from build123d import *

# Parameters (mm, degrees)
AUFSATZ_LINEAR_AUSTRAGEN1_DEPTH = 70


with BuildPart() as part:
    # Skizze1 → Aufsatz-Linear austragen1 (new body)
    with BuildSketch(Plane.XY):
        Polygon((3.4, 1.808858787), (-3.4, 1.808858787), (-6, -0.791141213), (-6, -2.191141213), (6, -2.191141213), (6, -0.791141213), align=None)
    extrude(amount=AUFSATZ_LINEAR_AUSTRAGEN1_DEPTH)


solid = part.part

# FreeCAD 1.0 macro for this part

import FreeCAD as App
import Part
import Sketcher
from FreeCAD import Vector
Q = App.Units.Quantity

doc = App.newDocument("Part")
body = doc.addObject("PartDesign::Body", "Body")

sketch1 = body.newObject("Sketcher::SketchObject", "Sketch")
sketch1.AttachmentSupport = (doc.getObject("XY_Plane"), [""])
sketch1.MapMode = "FlatFace"
sketch1.addGeometry([
    Part.LineSegment(Vector(3.4, 1.8, 0), Vector(-3.4, 1.8, 0)),
    Part.LineSegment(Vector(-3.4, 1.8, 0), Vector(-6, -0.8, 0)),
    Part.LineSegment(Vector(-6, -0.8, 0), Vector(-6, -2.2, 0)),
    Part.LineSegment(Vector(-6, -2.2, 0), Vector(6, -2.2, 0)),
    Part.LineSegment(Vector(6, -2.2, 0), Vector(6, -0.8, 0)),
    Part.LineSegment(Vector(6, -0.8, 0), Vector(3.4, 1.8, 0)),
], False)
sketch1.addConstraint([
    Sketcher.Constraint("Coincident", 0, 2, 1, 1),
    Sketcher.Constraint("Coincident", 1, 2, 2, 1),
    Sketcher.Constraint("Coincident", 2, 2, 3, 1),
    Sketcher.Constraint("Coincident", 3, 2, 4, 1),
    Sketcher.Constraint("Coincident", 4, 2, 5, 1),
    Sketcher.Constraint("Coincident", 5, 2, 0, 1),
    Sketcher.Constraint("Horizontal", 0),
    Sketcher.Constraint("Vertical", 2),
    Sketcher.Constraint("Horizontal", 3),
    Sketcher.Constraint("Vertical", 4),
    Sketcher.Constraint("Symmetric", 1, 2, 4, 2, -2),
    Sketcher.Constraint("Perpendicular", 1, 5),
    Sketcher.Constraint("Equal", 1, 5),
    Sketcher.Constraint("DistanceX", 3, 1, 3, 2, Q("12 mm")),
    Sketcher.Constraint("DistanceX", 0, 2, 0, 1, Q("6.8 mm")),
    Sketcher.Constraint("DistanceY", 2, 2, 2, 1, Q("1.4 mm")),
    Sketcher.Constraint("DistanceY", -1, 1, 0, 2, Q("1.808859 mm")),
])
pad1 = body.newObject("PartDesign::Pad", "Pad")
pad1.Profile = sketch1
pad1.Length = 70

doc.recompute()
